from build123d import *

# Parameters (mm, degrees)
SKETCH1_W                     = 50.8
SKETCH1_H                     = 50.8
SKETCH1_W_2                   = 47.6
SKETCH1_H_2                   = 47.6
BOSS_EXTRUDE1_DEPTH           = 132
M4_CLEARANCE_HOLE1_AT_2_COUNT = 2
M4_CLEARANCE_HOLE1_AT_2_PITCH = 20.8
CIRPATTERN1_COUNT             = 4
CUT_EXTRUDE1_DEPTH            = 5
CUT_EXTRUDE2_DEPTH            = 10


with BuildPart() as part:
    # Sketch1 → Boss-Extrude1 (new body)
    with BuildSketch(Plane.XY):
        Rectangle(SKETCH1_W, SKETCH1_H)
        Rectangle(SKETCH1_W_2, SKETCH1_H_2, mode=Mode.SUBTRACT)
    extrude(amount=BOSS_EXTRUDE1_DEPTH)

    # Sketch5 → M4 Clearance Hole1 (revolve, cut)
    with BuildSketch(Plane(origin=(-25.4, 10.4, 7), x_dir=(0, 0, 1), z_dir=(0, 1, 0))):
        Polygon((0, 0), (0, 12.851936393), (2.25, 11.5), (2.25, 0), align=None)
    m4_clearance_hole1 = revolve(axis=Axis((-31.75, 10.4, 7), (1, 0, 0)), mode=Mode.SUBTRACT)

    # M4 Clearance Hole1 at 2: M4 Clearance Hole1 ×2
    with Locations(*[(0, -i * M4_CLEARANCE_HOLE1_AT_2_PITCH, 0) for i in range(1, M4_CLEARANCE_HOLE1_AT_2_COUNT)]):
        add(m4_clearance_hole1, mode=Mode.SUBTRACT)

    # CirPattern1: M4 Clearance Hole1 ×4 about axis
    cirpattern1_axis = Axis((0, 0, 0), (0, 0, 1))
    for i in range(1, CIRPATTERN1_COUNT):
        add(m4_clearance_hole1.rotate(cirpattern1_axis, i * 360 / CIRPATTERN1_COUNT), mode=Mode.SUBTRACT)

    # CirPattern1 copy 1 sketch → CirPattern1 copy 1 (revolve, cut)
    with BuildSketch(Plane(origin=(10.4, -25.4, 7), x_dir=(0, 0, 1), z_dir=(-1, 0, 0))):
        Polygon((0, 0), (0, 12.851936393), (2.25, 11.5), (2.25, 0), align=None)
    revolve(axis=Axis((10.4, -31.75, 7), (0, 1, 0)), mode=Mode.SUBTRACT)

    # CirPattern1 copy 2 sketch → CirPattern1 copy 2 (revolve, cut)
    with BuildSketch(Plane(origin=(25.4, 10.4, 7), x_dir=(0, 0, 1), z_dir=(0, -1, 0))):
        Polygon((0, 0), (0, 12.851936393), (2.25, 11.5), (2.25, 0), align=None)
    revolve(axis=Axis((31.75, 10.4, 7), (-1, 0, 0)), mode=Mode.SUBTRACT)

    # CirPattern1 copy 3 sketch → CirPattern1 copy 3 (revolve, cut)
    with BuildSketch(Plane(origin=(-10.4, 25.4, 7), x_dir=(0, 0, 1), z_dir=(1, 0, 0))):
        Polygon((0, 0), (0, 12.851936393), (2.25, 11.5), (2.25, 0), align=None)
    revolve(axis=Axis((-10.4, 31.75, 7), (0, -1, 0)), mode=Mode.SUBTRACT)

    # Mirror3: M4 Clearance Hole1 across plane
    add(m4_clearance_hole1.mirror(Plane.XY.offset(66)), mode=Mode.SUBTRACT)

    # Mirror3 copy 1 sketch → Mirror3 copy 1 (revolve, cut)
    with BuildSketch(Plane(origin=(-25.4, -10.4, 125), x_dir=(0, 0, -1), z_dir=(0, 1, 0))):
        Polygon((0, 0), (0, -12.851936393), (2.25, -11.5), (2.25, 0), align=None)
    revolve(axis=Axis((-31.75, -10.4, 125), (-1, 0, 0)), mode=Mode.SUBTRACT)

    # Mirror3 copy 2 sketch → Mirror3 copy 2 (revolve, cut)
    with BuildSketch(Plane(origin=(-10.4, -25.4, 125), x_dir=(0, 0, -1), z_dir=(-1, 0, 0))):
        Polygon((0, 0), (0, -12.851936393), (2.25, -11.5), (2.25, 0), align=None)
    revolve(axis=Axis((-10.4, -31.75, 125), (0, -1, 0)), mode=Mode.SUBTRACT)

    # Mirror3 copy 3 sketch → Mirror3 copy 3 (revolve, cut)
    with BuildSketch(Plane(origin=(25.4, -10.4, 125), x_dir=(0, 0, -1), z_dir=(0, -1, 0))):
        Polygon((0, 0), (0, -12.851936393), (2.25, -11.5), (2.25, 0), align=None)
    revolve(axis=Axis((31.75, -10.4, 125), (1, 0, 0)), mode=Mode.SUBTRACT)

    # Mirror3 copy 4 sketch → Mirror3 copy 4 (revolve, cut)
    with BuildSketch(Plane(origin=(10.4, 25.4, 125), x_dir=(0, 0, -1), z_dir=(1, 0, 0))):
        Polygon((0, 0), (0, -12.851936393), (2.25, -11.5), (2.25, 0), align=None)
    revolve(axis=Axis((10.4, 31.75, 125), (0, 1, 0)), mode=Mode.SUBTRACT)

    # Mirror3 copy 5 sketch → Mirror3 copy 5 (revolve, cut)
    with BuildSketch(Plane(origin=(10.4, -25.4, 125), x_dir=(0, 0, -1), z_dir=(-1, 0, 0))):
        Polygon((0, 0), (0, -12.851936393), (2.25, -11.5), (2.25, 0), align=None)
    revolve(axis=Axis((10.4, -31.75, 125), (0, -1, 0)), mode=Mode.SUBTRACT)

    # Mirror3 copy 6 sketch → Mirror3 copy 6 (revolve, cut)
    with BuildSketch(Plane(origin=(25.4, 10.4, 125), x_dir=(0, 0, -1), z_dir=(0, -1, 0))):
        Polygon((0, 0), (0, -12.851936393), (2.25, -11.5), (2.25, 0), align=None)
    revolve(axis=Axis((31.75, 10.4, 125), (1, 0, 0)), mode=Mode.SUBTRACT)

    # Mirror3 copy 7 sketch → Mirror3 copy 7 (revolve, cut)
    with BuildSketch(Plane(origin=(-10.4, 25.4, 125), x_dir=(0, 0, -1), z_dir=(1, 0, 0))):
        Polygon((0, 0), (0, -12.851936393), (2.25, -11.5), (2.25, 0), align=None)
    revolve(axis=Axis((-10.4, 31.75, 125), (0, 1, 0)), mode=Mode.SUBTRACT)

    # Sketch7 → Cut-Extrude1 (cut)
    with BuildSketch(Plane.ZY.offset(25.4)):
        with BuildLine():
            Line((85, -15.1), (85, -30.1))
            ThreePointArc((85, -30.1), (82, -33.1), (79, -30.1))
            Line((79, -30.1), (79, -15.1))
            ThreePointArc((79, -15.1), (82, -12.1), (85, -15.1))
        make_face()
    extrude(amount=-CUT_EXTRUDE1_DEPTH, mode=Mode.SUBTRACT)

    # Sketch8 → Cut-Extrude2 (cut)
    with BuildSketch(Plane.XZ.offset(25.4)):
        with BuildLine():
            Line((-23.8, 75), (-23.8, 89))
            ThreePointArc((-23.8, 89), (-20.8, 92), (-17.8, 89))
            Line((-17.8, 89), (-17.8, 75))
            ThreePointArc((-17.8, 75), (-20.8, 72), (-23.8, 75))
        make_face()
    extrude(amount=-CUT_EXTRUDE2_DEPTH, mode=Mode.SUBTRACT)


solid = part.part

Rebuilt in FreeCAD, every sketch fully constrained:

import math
import FreeCAD as App
import Part
import Sketcher

V = App.Vector
Q = App.Units.Quantity

doc = App.newDocument("Part")
body = doc.addObject("PartDesign::Body", "Body")

# Sketch on XY plane
sketch1 = doc.addObject("Sketcher::SketchObject", "Sketch")
body.addObject(sketch1)
sketch1.AttachmentSupport = (doc.XY_Plane, [""])
sketch1.MapMode = "FlatFace"
sketch1.addGeometry([
    Part.LineSegment(V(-25, 25, 0), V(-25, -25, 0)),  # 0
    Part.LineSegment(V(-25, -25, 0), V(25, -25, 0)),  # 1
    Part.LineSegment(V(25, -25, 0), V(25, 25, 0)),  # 2
    Part.LineSegment(V(25, 25, 0), V(-25, 25, 0)),  # 3
    Part.LineSegment(V(24, -24, 0), V(-24, -24, 0)),  # 4
    Part.LineSegment(V(-24, -24, 0), V(-24, 24, 0)),  # 5
    Part.LineSegment(V(-24, 24, 0), V(24, 24, 0)),  # 6
    Part.LineSegment(V(24, 24, 0), V(24, -24, 0)),  # 7
], False)
sketch1.addConstraint([
    Sketcher.Constraint("Coincident", 0, 2, 1, 1),
    Sketcher.Constraint("Coincident", 1, 2, 2, 1),
    Sketcher.Constraint("Coincident", 2, 2, 3, 1),
    Sketcher.Constraint("Coincident", 3, 2, 0, 1),
    Sketcher.Constraint("Coincident", 4, 2, 5, 1),
    Sketcher.Constraint("Coincident", 5, 2, 6, 1),
    Sketcher.Constraint("Coincident", 6, 2, 7, 1),
    Sketcher.Constraint("Coincident", 7, 2, 4, 1),
    Sketcher.Constraint("Vertical", 0),
    Sketcher.Constraint("Horizontal", 1),
    Sketcher.Constraint("Vertical", 2),
    Sketcher.Constraint("Horizontal", 3),
    Sketcher.Constraint("Horizontal", 4),
    Sketcher.Constraint("Vertical", 5),
    Sketcher.Constraint("Horizontal", 6),
    Sketcher.Constraint("Vertical", 7),
    Sketcher.Constraint("Symmetric", 0, 2, 2, 2, -1, 1),
    Sketcher.Constraint("Symmetric", 4, 2, 6, 2, -1, 1),
    Sketcher.Constraint("Equal", 3, 0),
    Sketcher.Constraint("Equal", 6, 5),
    Sketcher.Constraint("DistanceX", 1, 1, 1, 2, Q("50.8 mm")),
    Sketcher.Constraint("DistanceX", 4, 2, 4, 1, Q("47.6 mm")),
])
pad1 = doc.addObject("PartDesign::Pad", "Pad")
body.addObject(pad1)
pad1.Profile = sketch1
pad1.Length = 132

# Sketch on XZ plane
sketch2 = doc.addObject("Sketcher::SketchObject", "Sketch001")
body.addObject(sketch2)
sketch2.AttachmentSupport = (doc.XZ_Plane, [""])
sketch2.MapMode = "FlatFace"
sketch2.AttachmentOffset = App.Placement(V(0, 0, -10.4), App.Rotation())
sketch2.addGeometry([
    Part.LineSegment(V(-12.5, 7, 0), V(-25.4, 7, 0)),
    Part.LineSegment(V(-25.4, 7, 0), V(-25.4, 9.2, 0)),
    Part.LineSegment(V(-25.4, 9.2, 0), V(-13.9, 9.2, 0)),
    Part.LineSegment(V(-13.9, 9.2, 0), V(-12.5, 7, 0)),
], False)
sketch2.addGeometry(Part.LineSegment(V(-25.4, 7, 0), V(-12.5, 7, 0)), True)  # axis
sketch2.addConstraint([
    Sketcher.Constraint("Coincident", 0, 2, 1, 1),
    Sketcher.Constraint("Coincident", 1, 2, 2, 1),
    Sketcher.Constraint("Coincident", 2, 2, 3, 1),
    Sketcher.Constraint("Coincident", 3, 2, 0, 1),
    Sketcher.Constraint("Horizontal", 0),
    Sketcher.Constraint("Vertical", 1),
    Sketcher.Constraint("Horizontal", 2),
    Sketcher.Constraint("Horizontal", 4),
    Sketcher.Constraint("Coincident", 4, 1, 0, 2),
    Sketcher.Constraint("Equal", 0, 4),
    Sketcher.Constraint("Angle", 3, Q("-59 deg")),
    Sketcher.Constraint("DistanceX", 2, 1, 2, 2, Q("11.5 mm")),
    Sketcher.Constraint("DistanceY", -1, 1, 0, 2, Q("7 mm")),
    Sketcher.Constraint("DistanceY", 1, 1, 1, 2, Q("2.25 mm")),
    Sketcher.Constraint("DistanceX", 0, 2, -1, 1, Q("25.4 mm")),
])
groove = doc.addObject("PartDesign::Groove", "Groove")
body.addObject(groove)
groove.Profile = sketch2
groove.ReferenceAxis = (sketch2, ["Axis0"])
groove.Angle = 360
doc.recompute()

linearpattern = doc.addObject("PartDesign::LinearPattern", "LinearPattern")
body.addObject(linearpattern)
linearpattern.Originals = [groove]
linearpattern.Direction = (doc.Y_Axis, [""])
linearpattern.Mode = "offset"
linearpattern.Offset = 20.8
linearpattern.Occurrences = 2
linearpattern.Reversed = True
body.Tip = linearpattern
doc.recompute()

polarpattern = doc.addObject("PartDesign::PolarPattern", "PolarPattern")
body.addObject(polarpattern)
polarpattern.Originals = [groove]
polarpattern.Axis = (doc.Z_Axis, [""])
polarpattern.Angle = 360
polarpattern.Occurrences = 4
body.Tip = polarpattern

# Sketch on YZ plane
sketch3 = doc.addObject("Sketcher::SketchObject", "Sketch002")
body.addObject(sketch3)
sketch3.AttachmentSupport = (doc.YZ_Plane, [""])
sketch3.MapMode = "FlatFace"
sketch3.AttachmentOffset = App.Placement(V(0, 0, 10.4), App.Rotation())
sketch3.addGeometry([
    Part.LineSegment(V(-12.5, 7, 0), V(-25.4, 7, 0)),
    Part.LineSegment(V(-25.4, 7, 0), V(-25.4, 9.2, 0)),
    Part.LineSegment(V(-25.4, 9.2, 0), V(-13.9, 9.2, 0)),
    Part.LineSegment(V(-13.9, 9.2, 0), V(-12.5, 7, 0)),
], False)
sketch3.addGeometry(Part.LineSegment(V(-25.4, 7, 0), V(-12.5, 7, 0)), True)  # axis
sketch3.addConstraint([
    Sketcher.Constraint("Coincident", 0, 2, 1, 1),
    Sketcher.Constraint("Coincident", 1, 2, 2, 1),
    Sketcher.Constraint("Coincident", 2, 2, 3, 1),
    Sketcher.Constraint("Coincident", 3, 2, 0, 1),
    Sketcher.Constraint("Horizontal", 0),
    Sketcher.Constraint("Vertical", 1),
    Sketcher.Constraint("Horizontal", 2),
    Sketcher.Constraint("Horizontal", 4),
    Sketcher.Constraint("Coincident", 4, 1, 0, 2),
    Sketcher.Constraint("Equal", 0, 4),
    Sketcher.Constraint("Angle", 3, Q("-59 deg")),
    Sketcher.Constraint("DistanceX", 2, 1, 2, 2, Q("11.5 mm")),
    Sketcher.Constraint("DistanceY", -1, 1, 0, 2, Q("7 mm")),
    Sketcher.Constraint("DistanceY", 1, 1, 1, 2, Q("2.25 mm")),
    Sketcher.Constraint("DistanceX", 0, 2, -1, 1, Q("25.4 mm")),
])
groove2 = doc.addObject("PartDesign::Groove", "Groove001")
body.addObject(groove2)
groove2.Profile = sketch3
groove2.ReferenceAxis = (sketch3, ["Axis0"])
groove2.Angle = 360

# Sketch on XZ plane
sketch4 = doc.addObject("Sketcher::SketchObject", "Sketch003")
body.addObject(sketch4)
sketch4.AttachmentSupport = (doc.XZ_Plane, [""])
sketch4.MapMode = "FlatFace"
sketch4.AttachmentOffset = App.Placement(V(0, 0, -10.4), App.Rotation())
sketch4.addGeometry([
    Part.LineSegment(V(12.5, 7, 0), V(25.4, 7, 0)),
    Part.LineSegment(V(25.4, 7, 0), V(25.4, 9.2, 0)),
    Part.LineSegment(V(25.4, 9.2, 0), V(13.9, 9.2, 0)),
    Part.LineSegment(V(13.9, 9.2, 0), V(12.5, 7, 0)),
], False)
sketch4.addGeometry(Part.LineSegment(V(25.4, 7, 0), V(12.5, 7, 0)), True)  # axis
sketch4.addConstraint([
    Sketcher.Constraint("Coincident", 0, 2, 1, 1),
    Sketcher.Constraint("Coincident", 1, 2, 2, 1),
    Sketcher.Constraint("Coincident", 2, 2, 3, 1),
    Sketcher.Constraint("Coincident", 3, 2, 0, 1),
    Sketcher.Constraint("Horizontal", 0),
    Sketcher.Constraint("Vertical", 1),
    Sketcher.Constraint("Horizontal", 2),
    Sketcher.Constraint("Horizontal", 4),
    Sketcher.Constraint("Coincident", 4, 1, 0, 2),
    Sketcher.Constraint("Equal", 0, 4),
    Sketcher.Constraint("Angle", 3, Q("-121 deg")),
    Sketcher.Constraint("DistanceX", 2, 2, 2, 1, Q("11.5 mm")),
    Sketcher.Constraint("DistanceY", -1, 1, 0, 2, Q("7 mm")),
    Sketcher.Constraint("DistanceY", 1, 1, 1, 2, Q("2.25 mm")),
    Sketcher.Constraint("DistanceX", -1, 1, 0, 2, Q("25.4 mm")),
])
groove3 = doc.addObject("PartDesign::Groove", "Groove002")
body.addObject(groove3)
groove3.Profile = sketch4
groove3.ReferenceAxis = (sketch4, ["Axis0"])
groove3.Angle = 360

# Sketch on YZ plane
sketch5 = doc.addObject("Sketcher::SketchObject", "Sketch004")
body.addObject(sketch5)
sketch5.AttachmentSupport = (doc.YZ_Plane, [""])
sketch5.MapMode = "FlatFace"
sketch5.AttachmentOffset = App.Placement(V(0, 0, -10.4), App.Rotation())
sketch5.addGeometry([
    Part.LineSegment(V(12.5, 7, 0), V(25.4, 7, 0)),
    Part.LineSegment(V(25.4, 7, 0), V(25.4, 9.2, 0)),
    Part.LineSegment(V(25.4, 9.2, 0), V(13.9, 9.2, 0)),
    Part.LineSegment(V(13.9, 9.2, 0), V(12.5, 7, 0)),
], False)
sketch5.addGeometry(Part.LineSegment(V(25.4, 7, 0), V(12.5, 7, 0)), True)  # axis
sketch5.addConstraint([
    Sketcher.Constraint("Coincident", 0, 2, 1, 1),
    Sketcher.Constraint("Coincident", 1, 2, 2, 1),
    Sketcher.Constraint("Coincident", 2, 2, 3, 1),
    Sketcher.Constraint("Coincident", 3, 2, 0, 1),
    Sketcher.Constraint("Horizontal", 0),
    Sketcher.Constraint("Vertical", 1),
    Sketcher.Constraint("Horizontal", 2),
    Sketcher.Constraint("Horizontal", 4),
    Sketcher.Constraint("Coincident", 4, 1, 0, 2),
    Sketcher.Constraint("Equal", 0, 4),
    Sketcher.Constraint("Angle", 3, Q("-121 deg")),
    Sketcher.Constraint("DistanceX", 2, 2, 2, 1, Q("11.5 mm")),
    Sketcher.Constraint("DistanceY", -1, 1, 0, 2, Q("7 mm")),
    Sketcher.Constraint("DistanceY", 1, 1, 1, 2, Q("2.25 mm")),
    Sketcher.Constraint("DistanceX", -1, 1, 0, 2, Q("25.4 mm")),
])
groove4 = doc.addObject("PartDesign::Groove", "Groove003")
body.addObject(groove4)
groove4.Profile = sketch5
groove4.ReferenceAxis = (sketch5, ["Axis0"])
groove4.Angle = 360
doc.recompute()

datumplane = doc.addObject("PartDesign::Plane", "DatumPlane")
body.addObject(datumplane)
datumplane.AttachmentSupport = (doc.XY_Plane, [""])
datumplane.MapMode = "FlatFace"
datumplane.AttachmentOffset = App.Placement(V(0, 0, 66), App.Rotation())
mirrored = doc.addObject("PartDesign::Mirrored", "Mirrored")
body.addObject(mirrored)
mirrored.Originals = [groove]
mirrored.MirrorPlane = (datumplane, [""])
body.Tip = mirrored

# Sketch on XZ plane
sketch6 = doc.addObject("Sketcher::SketchObject", "Sketch005")
body.addObject(sketch6)
sketch6.AttachmentSupport = (doc.XZ_Plane, [""])
sketch6.MapMode = "FlatFace"
sketch6.AttachmentOffset = App.Placement(V(0, 0, 10.4), App.Rotation())
sketch6.addGeometry([
    Part.LineSegment(V(-25.4, 125, 0), V(-12.5, 125, 0)),
    Part.LineSegment(V(-12.5, 125, 0), V(-13.9, 122.8, 0)),
    Part.LineSegment(V(-13.9, 122.8, 0), V(-25.4, 122.8, 0)),
    Part.LineSegment(V(-25.4, 122.8, 0), V(-25.4, 125, 0)),
], False)
sketch6.addGeometry(Part.LineSegment(V(-12.5, 125, 0), V(-25.4, 125, 0)), True)  # axis
sketch6.addConstraint([
    Sketcher.Constraint("Coincident", 0, 2, 1, 1),
    Sketcher.Constraint("Coincident", 1, 2, 2, 1),
    Sketcher.Constraint("Coincident", 2, 2, 3, 1),
    Sketcher.Constraint("Coincident", 3, 2, 0, 1),
    Sketcher.Constraint("Horizontal", 0),
    Sketcher.Constraint("Horizontal", 2),
    Sketcher.Constraint("Vertical", 3),
    Sketcher.Constraint("Horizontal", 4),
    Sketcher.Constraint("Coincident", 4, 1, 0, 2),
    Sketcher.Constraint("Vertical", 2, 2, 4, 2),
    Sketcher.Constraint("Angle", 1, Q("-121 deg")),
    Sketcher.Constraint("DistanceX", 2, 2, 2, 1, Q("11.5 mm")),
    Sketcher.Constraint("DistanceY", -1, 1, 0, 2, Q("125 mm")),
    Sketcher.Constraint("DistanceY", 3, 1, 3, 2, Q("2.25 mm")),
    Sketcher.Constraint("DistanceX", 1, 2, -1, 1, Q("13.9 mm")),
])
groove5 = doc.addObject("PartDesign::Groove", "Groove004")
body.addObject(groove5)
groove5.Profile = sketch6
groove5.ReferenceAxis = (sketch6, ["Axis0"])
groove5.Angle = 360

# Sketch on YZ plane
sketch7 = doc.addObject("Sketcher::SketchObject", "Sketch006")
body.addObject(sketch7)
sketch7.AttachmentSupport = (doc.YZ_Plane, [""])
sketch7.MapMode = "FlatFace"
sketch7.AttachmentOffset = App.Placement(V(0, 0, -10.4), App.Rotation())
sketch7.addGeometry([
    Part.LineSegment(V(-25.4, 125, 0), V(-12.5, 125, 0)),
    Part.LineSegment(V(-12.5, 125, 0), V(-13.9, 122.8, 0)),
    Part.LineSegment(V(-13.9, 122.8, 0), V(-25.4, 122.8, 0)),
    Part.LineSegment(V(-25.4, 122.8, 0), V(-25.4, 125, 0)),
], False)
sketch7.addGeometry(Part.LineSegment(V(-12.5, 125, 0), V(-25.4, 125, 0)), True)  # axis
sketch7.addConstraint([
    Sketcher.Constraint("Coincident", 0, 2, 1, 1),
    Sketcher.Constraint("Coincident", 1, 2, 2, 1),
    Sketcher.Constraint("Coincident", 2, 2, 3, 1),
    Sketcher.Constraint("Coincident", 3, 2, 0, 1),
    Sketcher.Constraint("Horizontal", 0),
    Sketcher.Constraint("Horizontal", 2),
    Sketcher.Constraint("Vertical", 3),
    Sketcher.Constraint("Horizontal", 4),
    Sketcher.Constraint("Coincident", 4, 1, 0, 2),
    Sketcher.Constraint("Vertical", 2, 2, 4, 2),
    Sketcher.Constraint("Angle", 1, Q("-121 deg")),
    Sketcher.Constraint("DistanceX", 2, 2, 2, 1, Q("11.5 mm")),
    Sketcher.Constraint("DistanceY", -1, 1, 0, 2, Q("125 mm")),
    Sketcher.Constraint("DistanceY", 3, 1, 3, 2, Q("2.25 mm")),
    Sketcher.Constraint("DistanceX", 1, 2, -1, 1, Q("13.9 mm")),
])
groove6 = doc.addObject("PartDesign::Groove", "Groove005")
body.addObject(groove6)
groove6.Profile = sketch7
groove6.ReferenceAxis = (sketch7, ["Axis0"])
groove6.Angle = 360

# Sketch on XZ plane
sketch8 = doc.addObject("Sketcher::SketchObject", "Sketch007")
body.addObject(sketch8)
sketch8.AttachmentSupport = (doc.XZ_Plane, [""])
sketch8.MapMode = "FlatFace"
sketch8.AttachmentOffset = App.Placement(V(0, 0, 10.4), App.Rotation())
sketch8.addGeometry([
    Part.LineSegment(V(25.4, 125, 0), V(12.5, 125, 0)),
    Part.LineSegment(V(12.5, 125, 0), V(13.9, 122.8, 0)),
    Part.LineSegment(V(13.9, 122.8, 0), V(25.4, 122.8, 0)),
    Part.LineSegment(V(25.4, 122.8, 0), V(25.4, 125, 0)),
], False)
sketch8.addGeometry(Part.LineSegment(V(12.5, 125, 0), V(25.4, 125, 0)), True)  # axis
sketch8.addConstraint([
    Sketcher.Constraint("Coincident", 0, 2, 1, 1),
    Sketcher.Constraint("Coincident", 1, 2, 2, 1),
    Sketcher.Constraint("Coincident", 2, 2, 3, 1),
    Sketcher.Constraint("Coincident", 3, 2, 0, 1),
    Sketcher.Constraint("Horizontal", 0),
    Sketcher.Constraint("Horizontal", 2),
    Sketcher.Constraint("Vertical", 3),
    Sketcher.Constraint("Horizontal", 4),
    Sketcher.Constraint("Coincident", 4, 1, 0, 2),
    Sketcher.Constraint("Vertical", 2, 2, 4, 2),
    Sketcher.Constraint("Angle", 1, Q("-59 deg")),
    Sketcher.Constraint("DistanceX", 2, 1, 2, 2, Q("11.5 mm")),
    Sketcher.Constraint("DistanceY", -1, 1, 0, 2, Q("125 mm")),
    Sketcher.Constraint("DistanceY", 3, 1, 3, 2, Q("2.25 mm")),
    Sketcher.Constraint("DistanceX", -1, 1, 1, 2, Q("13.9 mm")),
])
groove7 = doc.addObject("PartDesign::Groove", "Groove006")
body.addObject(groove7)
groove7.Profile = sketch8
groove7.ReferenceAxis = (sketch8, ["Axis0"])
groove7.Angle = 360

# Sketch on YZ plane
sketch9 = doc.addObject("Sketcher::SketchObject", "Sketch008")
body.addObject(sketch9)
sketch9.AttachmentSupport = (doc.YZ_Plane, [""])
sketch9.MapMode = "FlatFace"
sketch9.AttachmentOffset = App.Placement(V(0, 0, 10.4), App.Rotation())
sketch9.addGeometry([
    Part.LineSegment(V(25.4, 125, 0), V(12.5, 125, 0)),
    Part.LineSegment(V(12.5, 125, 0), V(13.9, 122.8, 0)),
    Part.LineSegment(V(13.9, 122.8, 0), V(25.4, 122.8, 0)),
    Part.LineSegment(V(25.4, 122.8, 0), V(25.4, 125, 0)),
], False)
sketch9.addGeometry(Part.LineSegment(V(12.5, 125, 0), V(25.4, 125, 0)), True)  # axis
sketch9.addConstraint([
    Sketcher.Constraint("Coincident", 0, 2, 1, 1),
    Sketcher.Constraint("Coincident", 1, 2, 2, 1),
    Sketcher.Constraint("Coincident", 2, 2, 3, 1),
    Sketcher.Constraint("Coincident", 3, 2, 0, 1),
    Sketcher.Constraint("Horizontal", 0),
    Sketcher.Constraint("Horizontal", 2),
    Sketcher.Constraint("Vertical", 3),
    Sketcher.Constraint("Horizontal", 4),
    Sketcher.Constraint("Coincident", 4, 1, 0, 2),
    Sketcher.Constraint("Vertical", 2, 2, 4, 2),
    Sketcher.Constraint("Angle", 1, Q("-59 deg")),
    Sketcher.Constraint("DistanceX", 2, 1, 2, 2, Q("11.5 mm")),
    Sketcher.Constraint("DistanceY", -1, 1, 0, 2, Q("125 mm")),
    Sketcher.Constraint("DistanceY", 3, 1, 3, 2, Q("2.25 mm")),
    Sketcher.Constraint("DistanceX", -1, 1, 1, 2, Q("13.9 mm")),
])
groove8 = doc.addObject("PartDesign::Groove", "Groove007")
body.addObject(groove8)
groove8.Profile = sketch9
groove8.ReferenceAxis = (sketch9, ["Axis0"])
groove8.Angle = 360

# Sketch on YZ plane
sketch10 = doc.addObject("Sketcher::SketchObject", "Sketch009")
body.addObject(sketch10)
sketch10.AttachmentSupport = (doc.YZ_Plane, [""])
sketch10.MapMode = "FlatFace"
sketch10.AttachmentOffset = App.Placement(V(0, 0, 10.4), App.Rotation())
sketch10.addGeometry([
    Part.LineSegment(V(-25.4, 125, 0), V(-12.5, 125, 0)),
    Part.LineSegment(V(-12.5, 125, 0), V(-13.9, 122.8, 0)),
    Part.LineSegment(V(-13.9, 122.8, 0), V(-25.4, 122.8, 0)),
    Part.LineSegment(V(-25.4, 122.8, 0), V(-25.4, 125, 0)),
], False)
sketch10.addGeometry(Part.LineSegment(V(-12.5, 125, 0), V(-25.4, 125, 0)), True)  # axis
sketch10.addConstraint([
    Sketcher.Constraint("Coincident", 0, 2, 1, 1),
    Sketcher.Constraint("Coincident", 1, 2, 2, 1),
    Sketcher.Constraint("Coincident", 2, 2, 3, 1),
    Sketcher.Constraint("Coincident", 3, 2, 0, 1),
    Sketcher.Constraint("Horizontal", 0),
    Sketcher.Constraint("Horizontal", 2),
    Sketcher.Constraint("Vertical", 3),
    Sketcher.Constraint("Horizontal", 4),
    Sketcher.Constraint("Coincident", 4, 1, 0, 2),
    Sketcher.Constraint("Vertical", 2, 2, 4, 2),
    Sketcher.Constraint("Angle", 1, Q("-121 deg")),
    Sketcher.Constraint("DistanceX", 2, 2, 2, 1, Q("11.5 mm")),
    Sketcher.Constraint("DistanceY", -1, 1, 0, 2, Q("125 mm")),
    Sketcher.Constraint("DistanceY", 3, 1, 3, 2, Q("2.25 mm")),
    Sketcher.Constraint("DistanceX", 1, 2, -1, 1, Q("13.9 mm")),
])
groove9 = doc.addObject("PartDesign::Groove", "Groove008")
body.addObject(groove9)
groove9.Profile = sketch10
groove9.ReferenceAxis = (sketch10, ["Axis0"])
groove9.Angle = 360

# Sketch on XZ plane
sketch11 = doc.addObject("Sketcher::SketchObject", "Sketch010")
body.addObject(sketch11)
sketch11.AttachmentSupport = (doc.XZ_Plane, [""])
sketch11.MapMode = "FlatFace"
sketch11.AttachmentOffset = App.Placement(V(0, 0, -10.4), App.Rotation())
sketch11.addGeometry([
    Part.LineSegment(V(25.4, 125, 0), V(12.5, 125, 0)),
    Part.LineSegment(V(12.5, 125, 0), V(13.9, 122.8, 0)),
    Part.LineSegment(V(13.9, 122.8, 0), V(25.4, 122.8, 0)),
    Part.LineSegment(V(25.4, 122.8, 0), V(25.4, 125, 0)),
], False)
sketch11.addGeometry(Part.LineSegment(V(12.5, 125, 0), V(25.4, 125, 0)), True)  # axis
sketch11.addConstraint([
    Sketcher.Constraint("Coincident", 0, 2, 1, 1),
    Sketcher.Constraint("Coincident", 1, 2, 2, 1),
    Sketcher.Constraint("Coincident", 2, 2, 3, 1),
    Sketcher.Constraint("Coincident", 3, 2, 0, 1),
    Sketcher.Constraint("Horizontal", 0),
    Sketcher.Constraint("Horizontal", 2),
    Sketcher.Constraint("Vertical", 3),
    Sketcher.Constraint("Horizontal", 4),
    Sketcher.Constraint("Coincident", 4, 1, 0, 2),
    Sketcher.Constraint("Vertical", 2, 2, 4, 2),
    Sketcher.Constraint("Angle", 1, Q("-59 deg")),
    Sketcher.Constraint("DistanceX", 2, 1, 2, 2, Q("11.5 mm")),
    Sketcher.Constraint("DistanceY", -1, 1, 0, 2, Q("125 mm")),
    Sketcher.Constraint("DistanceY", 3, 1, 3, 2, Q("2.25 mm")),
    Sketcher.Constraint("DistanceX", -1, 1, 1, 2, Q("13.9 mm")),
])
groove10 = doc.addObject("PartDesign::Groove", "Groove009")
body.addObject(groove10)
groove10.Profile = sketch11
groove10.ReferenceAxis = (sketch11, ["Axis0"])
groove10.Angle = 360

# Sketch on YZ plane
sketch12 = doc.addObject("Sketcher::SketchObject", "Sketch011")
body.addObject(sketch12)
sketch12.AttachmentSupport = (doc.YZ_Plane, [""])
sketch12.MapMode = "FlatFace"
sketch12.AttachmentOffset = App.Placement(V(0, 0, -10.4), App.Rotation())
sketch12.addGeometry([
    Part.LineSegment(V(25.4, 125, 0), V(12.5, 125, 0)),
    Part.LineSegment(V(12.5, 125, 0), V(13.9, 122.8, 0)),
    Part.LineSegment(V(13.9, 122.8, 0), V(25.4, 122.8, 0)),
    Part.LineSegment(V(25.4, 122.8, 0), V(25.4, 125, 0)),
], False)
sketch12.addGeometry(Part.LineSegment(V(12.5, 125, 0), V(25.4, 125, 0)), True)  # axis
sketch12.addConstraint([
    Sketcher.Constraint("Coincident", 0, 2, 1, 1),
    Sketcher.Constraint("Coincident", 1, 2, 2, 1),
    Sketcher.Constraint("Coincident", 2, 2, 3, 1),
    Sketcher.Constraint("Coincident", 3, 2, 0, 1),
    Sketcher.Constraint("Horizontal", 0),
    Sketcher.Constraint("Horizontal", 2),
    Sketcher.Constraint("Vertical", 3),
    Sketcher.Constraint("Horizontal", 4),
    Sketcher.Constraint("Coincident", 4, 1, 0, 2),
    Sketcher.Constraint("Vertical", 2, 2, 4, 2),
    Sketcher.Constraint("Angle", 1, Q("-59 deg")),
    Sketcher.Constraint("DistanceX", 2, 1, 2, 2, Q("11.5 mm")),
    Sketcher.Constraint("DistanceY", -1, 1, 0, 2, Q("125 mm")),
    Sketcher.Constraint("DistanceY", 3, 1, 3, 2, Q("2.25 mm")),
    Sketcher.Constraint("DistanceX", -1, 1, 1, 2, Q("13.9 mm")),
])
groove11 = doc.addObject("PartDesign::Groove", "Groove010")
body.addObject(groove11)
groove11.Profile = sketch12
groove11.ReferenceAxis = (sketch12, ["Axis0"])
groove11.Angle = 360

# Sketch on YZ plane
sketch13 = doc.addObject("Sketcher::SketchObject", "Sketch012")
body.addObject(sketch13)
sketch13.AttachmentSupport = (doc.YZ_Plane, [""])
sketch13.MapMode = "FlatFace"
sketch13.AttachmentOffset = App.Placement(V(0, 0, -25.4), App.Rotation())
sketch13.addGeometry([
    Part.LineSegment(V(-30.1, 85, 0), V(-15.1, 85, 0)),
    Part.ArcOfCircle(Part.Circle(V(-15.1, 82, 0), V(0, 0, 1), 3), math.radians(-90), math.radians(90)),
    Part.LineSegment(V(-15.1, 79, 0), V(-30.1, 79, 0)),
    Part.ArcOfCircle(Part.Circle(V(-30.1, 82, 0), V(0, 0, 1), 3), math.radians(90), math.radians(270)),
], False)
sketch13.addConstraint([
    Sketcher.Constraint("Tangent", 0, 2, 1, 2),
    Sketcher.Constraint("Tangent", 1, 1, 2, 1),
    Sketcher.Constraint("Tangent", 2, 2, 3, 2),
    Sketcher.Constraint("Tangent", 3, 1, 0, 1),
    Sketcher.Constraint("Horizontal", 0),
    Sketcher.Constraint("Horizontal", 2),
    Sketcher.Constraint("Radius", 1, Q("3 mm")),
    Sketcher.Constraint("DistanceX", 0, 1, 0, 2, Q("15 mm")),
    Sketcher.Constraint("DistanceY", -1, 1, 1, 3, Q("82 mm")),
    Sketcher.Constraint("DistanceX", 1, 3, -1, 1, Q("15.1 mm")),
])
pocket1 = doc.addObject("PartDesign::Pocket", "Pocket")
body.addObject(pocket1)
pocket1.Profile = sketch13
pocket1.Length = 5
pocket1.Reversed = True

# Sketch on XZ plane
sketch14 = doc.addObject("Sketcher::SketchObject", "Sketch013")
body.addObject(sketch14)
sketch14.AttachmentSupport = (doc.XZ_Plane, [""])
sketch14.MapMode = "FlatFace"
sketch14.AttachmentOffset = App.Placement(V(0, 0, 25.4), App.Rotation())
sketch14.addGeometry([
    Part.LineSegment(V(-23.8, 89, 0), V(-23.8, 75, 0)),
    Part.ArcOfCircle(Part.Circle(V(-20.8, 75, 0), V(0, 0, 1), 3), math.radians(180), math.radians(360)),
    Part.LineSegment(V(-17.8, 75, 0), V(-17.8, 89, 0)),
    Part.ArcOfCircle(Part.Circle(V(-20.8, 89, 0), V(0, 0, 1), 3), math.radians(0), math.radians(180)),
], False)
sketch14.addConstraint([
    Sketcher.Constraint("Tangent", 0, 2, 1, 1),
    Sketcher.Constraint("Tangent", 1, 2, 2, 1),
    Sketcher.Constraint("Tangent", 2, 2, 3, 1),
    Sketcher.Constraint("Tangent", 3, 2, 0, 1),
    Sketcher.Constraint("Vertical", 0),
    Sketcher.Constraint("Vertical", 2),
    Sketcher.Constraint("Radius", 1, Q("3 mm")),
    Sketcher.Constraint("DistanceY", 0, 2, 0, 1, Q("14 mm")),
    Sketcher.Constraint("DistanceY", -1, 1, 1, 3, Q("75 mm")),
    Sketcher.Constraint("DistanceX", 1, 3, -1, 1, Q("20.8 mm")),
])
pocket2 = doc.addObject("PartDesign::Pocket", "Pocket001")
body.addObject(pocket2)
pocket2.Profile = sketch14
pocket2.Length = 10

doc.recompute()
